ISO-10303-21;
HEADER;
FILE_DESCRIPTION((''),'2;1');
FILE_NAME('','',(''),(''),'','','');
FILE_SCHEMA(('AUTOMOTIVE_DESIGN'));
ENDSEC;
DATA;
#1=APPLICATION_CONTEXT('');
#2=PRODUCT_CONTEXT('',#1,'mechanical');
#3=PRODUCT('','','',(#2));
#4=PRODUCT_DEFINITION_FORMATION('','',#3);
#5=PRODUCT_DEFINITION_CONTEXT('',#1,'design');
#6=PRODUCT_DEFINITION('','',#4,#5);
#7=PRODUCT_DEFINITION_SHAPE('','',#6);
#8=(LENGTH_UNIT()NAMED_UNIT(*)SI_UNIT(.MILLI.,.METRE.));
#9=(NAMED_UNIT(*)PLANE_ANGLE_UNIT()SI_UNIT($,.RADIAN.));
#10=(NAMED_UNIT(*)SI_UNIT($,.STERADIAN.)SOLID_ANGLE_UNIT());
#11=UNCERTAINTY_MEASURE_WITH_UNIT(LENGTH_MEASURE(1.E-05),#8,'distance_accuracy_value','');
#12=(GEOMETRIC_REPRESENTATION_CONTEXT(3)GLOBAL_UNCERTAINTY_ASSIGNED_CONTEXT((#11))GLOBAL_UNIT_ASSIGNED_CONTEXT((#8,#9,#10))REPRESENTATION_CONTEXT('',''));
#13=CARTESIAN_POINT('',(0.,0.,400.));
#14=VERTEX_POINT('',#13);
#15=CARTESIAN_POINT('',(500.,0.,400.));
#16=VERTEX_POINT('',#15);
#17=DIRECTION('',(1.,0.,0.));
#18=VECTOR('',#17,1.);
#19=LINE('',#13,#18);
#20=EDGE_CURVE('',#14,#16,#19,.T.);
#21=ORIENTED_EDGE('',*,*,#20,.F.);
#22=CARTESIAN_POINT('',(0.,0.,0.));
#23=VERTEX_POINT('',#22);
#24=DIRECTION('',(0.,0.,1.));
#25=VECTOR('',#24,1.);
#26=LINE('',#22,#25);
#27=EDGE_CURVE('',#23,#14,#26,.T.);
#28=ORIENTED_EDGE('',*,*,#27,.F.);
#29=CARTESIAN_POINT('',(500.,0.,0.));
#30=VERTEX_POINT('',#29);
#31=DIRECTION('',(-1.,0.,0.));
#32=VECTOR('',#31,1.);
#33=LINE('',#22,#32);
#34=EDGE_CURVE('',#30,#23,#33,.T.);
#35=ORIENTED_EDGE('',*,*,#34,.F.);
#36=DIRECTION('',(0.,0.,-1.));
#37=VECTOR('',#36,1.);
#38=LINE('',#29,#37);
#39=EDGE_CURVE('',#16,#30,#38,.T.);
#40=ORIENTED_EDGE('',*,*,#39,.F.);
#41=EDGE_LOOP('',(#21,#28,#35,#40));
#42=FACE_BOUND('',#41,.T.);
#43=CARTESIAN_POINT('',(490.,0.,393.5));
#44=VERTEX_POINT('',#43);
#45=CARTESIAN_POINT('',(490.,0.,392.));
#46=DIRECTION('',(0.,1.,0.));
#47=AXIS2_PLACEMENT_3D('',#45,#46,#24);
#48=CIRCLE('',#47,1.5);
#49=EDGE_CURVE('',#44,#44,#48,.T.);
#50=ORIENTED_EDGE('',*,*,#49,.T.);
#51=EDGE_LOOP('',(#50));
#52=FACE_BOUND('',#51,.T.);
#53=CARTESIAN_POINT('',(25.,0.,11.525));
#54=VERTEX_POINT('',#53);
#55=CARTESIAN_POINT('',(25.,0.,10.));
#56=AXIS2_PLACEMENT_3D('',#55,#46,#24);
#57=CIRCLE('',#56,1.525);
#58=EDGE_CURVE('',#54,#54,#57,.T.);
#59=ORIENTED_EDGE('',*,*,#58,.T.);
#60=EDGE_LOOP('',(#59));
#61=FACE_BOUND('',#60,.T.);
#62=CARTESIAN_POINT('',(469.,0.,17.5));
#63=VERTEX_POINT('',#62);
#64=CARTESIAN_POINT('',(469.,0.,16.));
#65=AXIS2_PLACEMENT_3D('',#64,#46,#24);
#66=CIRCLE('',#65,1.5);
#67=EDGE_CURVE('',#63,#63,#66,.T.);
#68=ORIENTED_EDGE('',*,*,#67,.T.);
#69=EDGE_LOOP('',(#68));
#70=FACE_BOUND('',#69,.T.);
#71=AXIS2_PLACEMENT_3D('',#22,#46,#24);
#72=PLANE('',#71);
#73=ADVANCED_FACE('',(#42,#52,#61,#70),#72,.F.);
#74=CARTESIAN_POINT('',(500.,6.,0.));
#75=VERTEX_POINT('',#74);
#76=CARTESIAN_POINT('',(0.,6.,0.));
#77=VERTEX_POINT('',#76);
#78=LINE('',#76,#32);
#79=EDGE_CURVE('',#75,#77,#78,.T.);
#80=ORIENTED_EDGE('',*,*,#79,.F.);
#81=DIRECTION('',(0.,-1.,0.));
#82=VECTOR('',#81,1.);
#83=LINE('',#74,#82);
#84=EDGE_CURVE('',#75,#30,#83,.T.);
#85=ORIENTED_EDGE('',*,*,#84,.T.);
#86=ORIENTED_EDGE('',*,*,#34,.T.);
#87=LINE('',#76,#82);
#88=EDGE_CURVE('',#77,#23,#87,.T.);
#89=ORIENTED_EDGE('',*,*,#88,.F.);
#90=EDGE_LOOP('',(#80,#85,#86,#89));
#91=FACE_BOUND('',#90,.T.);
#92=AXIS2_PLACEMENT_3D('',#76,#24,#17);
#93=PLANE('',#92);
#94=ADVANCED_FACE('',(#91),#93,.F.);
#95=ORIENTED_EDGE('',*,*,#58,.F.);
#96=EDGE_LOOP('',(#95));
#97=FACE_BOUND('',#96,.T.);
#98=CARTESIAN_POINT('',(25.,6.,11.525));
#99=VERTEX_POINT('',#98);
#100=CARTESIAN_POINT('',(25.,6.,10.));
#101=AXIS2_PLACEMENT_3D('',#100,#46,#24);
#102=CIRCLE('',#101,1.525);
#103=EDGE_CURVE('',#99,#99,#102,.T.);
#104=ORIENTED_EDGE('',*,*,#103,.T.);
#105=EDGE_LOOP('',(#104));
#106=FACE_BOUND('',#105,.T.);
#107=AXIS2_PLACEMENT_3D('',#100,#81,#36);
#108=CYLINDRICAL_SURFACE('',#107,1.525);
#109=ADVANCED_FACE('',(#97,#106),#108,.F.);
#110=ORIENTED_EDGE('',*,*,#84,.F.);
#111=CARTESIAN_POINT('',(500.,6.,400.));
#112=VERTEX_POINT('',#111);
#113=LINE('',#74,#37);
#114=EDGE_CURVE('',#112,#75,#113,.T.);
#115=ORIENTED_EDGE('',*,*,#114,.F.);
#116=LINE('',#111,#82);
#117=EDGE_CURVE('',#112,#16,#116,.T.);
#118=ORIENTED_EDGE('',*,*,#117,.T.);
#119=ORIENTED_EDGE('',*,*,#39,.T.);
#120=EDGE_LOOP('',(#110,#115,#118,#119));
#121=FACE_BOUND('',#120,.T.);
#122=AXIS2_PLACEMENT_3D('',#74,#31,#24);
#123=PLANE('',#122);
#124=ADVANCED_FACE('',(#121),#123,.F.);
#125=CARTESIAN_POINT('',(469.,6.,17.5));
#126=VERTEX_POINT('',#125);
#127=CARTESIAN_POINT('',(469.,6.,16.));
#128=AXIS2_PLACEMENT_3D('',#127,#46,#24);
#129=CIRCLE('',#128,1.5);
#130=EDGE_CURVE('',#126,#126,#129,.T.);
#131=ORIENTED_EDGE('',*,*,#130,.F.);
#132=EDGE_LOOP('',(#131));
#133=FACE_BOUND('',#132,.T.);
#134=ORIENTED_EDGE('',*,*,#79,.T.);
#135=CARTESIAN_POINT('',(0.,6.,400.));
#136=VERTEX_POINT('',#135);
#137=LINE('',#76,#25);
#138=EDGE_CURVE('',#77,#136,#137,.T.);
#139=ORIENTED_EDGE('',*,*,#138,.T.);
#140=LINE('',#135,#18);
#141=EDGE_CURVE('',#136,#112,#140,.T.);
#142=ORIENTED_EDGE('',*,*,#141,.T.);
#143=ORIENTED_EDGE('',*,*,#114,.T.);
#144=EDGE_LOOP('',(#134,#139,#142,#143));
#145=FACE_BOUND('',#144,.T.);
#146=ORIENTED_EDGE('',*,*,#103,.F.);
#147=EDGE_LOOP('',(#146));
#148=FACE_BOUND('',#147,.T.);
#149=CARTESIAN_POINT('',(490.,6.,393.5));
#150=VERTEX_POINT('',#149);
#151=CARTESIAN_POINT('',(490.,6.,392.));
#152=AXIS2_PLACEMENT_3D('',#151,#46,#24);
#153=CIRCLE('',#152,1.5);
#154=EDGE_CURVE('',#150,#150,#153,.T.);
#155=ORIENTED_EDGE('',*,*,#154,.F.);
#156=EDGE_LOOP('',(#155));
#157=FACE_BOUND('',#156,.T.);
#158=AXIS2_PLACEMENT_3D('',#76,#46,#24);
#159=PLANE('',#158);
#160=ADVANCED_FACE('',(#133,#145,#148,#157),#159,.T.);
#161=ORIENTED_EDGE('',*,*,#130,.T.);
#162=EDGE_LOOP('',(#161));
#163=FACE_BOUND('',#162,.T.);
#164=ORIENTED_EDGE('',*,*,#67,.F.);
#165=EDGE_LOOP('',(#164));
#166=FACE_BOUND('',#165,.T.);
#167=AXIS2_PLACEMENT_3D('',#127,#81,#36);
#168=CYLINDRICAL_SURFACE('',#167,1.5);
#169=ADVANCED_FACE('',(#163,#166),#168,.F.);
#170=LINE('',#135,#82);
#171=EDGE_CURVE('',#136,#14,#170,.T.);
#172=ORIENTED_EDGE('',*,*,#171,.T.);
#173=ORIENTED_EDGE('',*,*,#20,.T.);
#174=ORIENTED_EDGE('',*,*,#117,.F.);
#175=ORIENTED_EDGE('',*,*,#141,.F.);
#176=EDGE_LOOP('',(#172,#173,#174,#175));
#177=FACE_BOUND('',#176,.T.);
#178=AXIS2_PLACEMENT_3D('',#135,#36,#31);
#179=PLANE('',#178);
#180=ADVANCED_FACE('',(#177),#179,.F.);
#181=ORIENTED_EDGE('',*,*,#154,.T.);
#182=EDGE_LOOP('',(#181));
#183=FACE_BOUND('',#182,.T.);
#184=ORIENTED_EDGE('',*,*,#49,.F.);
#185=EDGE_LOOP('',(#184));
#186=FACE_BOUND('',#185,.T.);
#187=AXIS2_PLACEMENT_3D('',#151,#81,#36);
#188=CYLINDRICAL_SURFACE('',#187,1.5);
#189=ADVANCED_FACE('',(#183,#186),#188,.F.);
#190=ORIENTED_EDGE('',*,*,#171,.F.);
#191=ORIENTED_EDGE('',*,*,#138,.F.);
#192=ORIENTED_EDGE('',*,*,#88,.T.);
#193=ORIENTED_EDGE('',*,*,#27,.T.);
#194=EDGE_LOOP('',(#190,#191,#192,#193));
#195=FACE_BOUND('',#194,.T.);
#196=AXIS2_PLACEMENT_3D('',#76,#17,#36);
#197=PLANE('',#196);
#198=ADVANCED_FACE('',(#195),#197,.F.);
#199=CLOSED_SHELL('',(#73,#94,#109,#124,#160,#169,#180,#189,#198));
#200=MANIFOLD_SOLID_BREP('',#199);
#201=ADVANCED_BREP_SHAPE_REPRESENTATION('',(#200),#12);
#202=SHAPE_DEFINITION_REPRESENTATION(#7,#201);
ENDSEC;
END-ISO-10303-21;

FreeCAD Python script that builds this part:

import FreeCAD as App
import Part
import Sketcher
from FreeCAD import Vector

doc = App.newDocument("Part")
body = doc.addObject("PartDesign::Body", "Body")

# Sketch on XZ plane
sketch1 = body.newObject("Sketcher::SketchObject", "Sketch")
sketch1.AttachmentSupport = (doc.getObject("XZ_Plane"), [""])
sketch1.MapMode = "FlatFace"
sketch1.addGeometry(Part.LineSegment(Vector(0, 0, 0), Vector(0, 400, 0)), False)
sketch1.addGeometry(Part.LineSegment(Vector(0, 400, 0), Vector(500, 400, 0)), False)
sketch1.addGeometry(Part.LineSegment(Vector(500, 400, 0), Vector(500, 0, 0)), False)
sketch1.addGeometry(Part.LineSegment(Vector(500, 0, 0), Vector(0, 0, 0)), False)
sketch1.addGeometry(Part.Circle(Vector(490, 392, 0), Vector(0, 0, 1), 1.5), False)
sketch1.addGeometry(Part.Circle(Vector(25, 10, 0), Vector(0, 0, 1), 1.525), False)
sketch1.addGeometry(Part.Circle(Vector(469, 16, 0), Vector(0, 0, 1), 1.5), False)
sketch1.addConstraint(Sketcher.Constraint("Coincident", 0, 2, 1, 1))
sketch1.addConstraint(Sketcher.Constraint("Coincident", 1, 2, 2, 1))
sketch1.addConstraint(Sketcher.Constraint("Coincident", 2, 2, 3, 1))
sketch1.addConstraint(Sketcher.Constraint("Coincident", 3, 2, 0, 1))
sketch1.addConstraint(Sketcher.Constraint("Vertical", 0))
sketch1.addConstraint(Sketcher.Constraint("Horizontal", 1))
sketch1.addConstraint(Sketcher.Constraint("Vertical", 2))
sketch1.addConstraint(Sketcher.Constraint("Horizontal", 3))
sketch1.addConstraint(Sketcher.Constraint("Coincident", 3, 2, -1, 1))
sketch1.addConstraint(Sketcher.Constraint("Equal", 4, 6))
sketch1.addConstraint(Sketcher.Constraint("Diameter", 4, 3.0))
sketch1.addConstraint(Sketcher.Constraint("Diameter", 5, 3.05))
sketch1.addConstraint(Sketcher.Constraint("DistanceX", 1, 1, 1, 2, 500.0))
sketch1.addConstraint(Sketcher.Constraint("DistanceY", 0, 1, 0, 2, 400.0))
sketch1.addConstraint(Sketcher.Constraint("DistanceX", -1, 1, 4, 3, 490.0))
sketch1.addConstraint(Sketcher.Constraint("DistanceY", -1, 1, 4, 3, 392.0))
sketch1.addConstraint(Sketcher.Constraint("DistanceX", -1, 1, 5, 3, 25.0))
sketch1.addConstraint(Sketcher.Constraint("DistanceY", -1, 1, 5, 3, 10.0))
sketch1.addConstraint(Sketcher.Constraint("DistanceX", -1, 1, 6, 3, 469.0))
sketch1.addConstraint(Sketcher.Constraint("DistanceY", -1, 1, 6, 3, 16.0))
pad1 = body.newObject("PartDesign::Pad", "Pad")
pad1.Profile = sketch1
pad1.Length = 6
pad1.Reversed = True

doc.recompute()
